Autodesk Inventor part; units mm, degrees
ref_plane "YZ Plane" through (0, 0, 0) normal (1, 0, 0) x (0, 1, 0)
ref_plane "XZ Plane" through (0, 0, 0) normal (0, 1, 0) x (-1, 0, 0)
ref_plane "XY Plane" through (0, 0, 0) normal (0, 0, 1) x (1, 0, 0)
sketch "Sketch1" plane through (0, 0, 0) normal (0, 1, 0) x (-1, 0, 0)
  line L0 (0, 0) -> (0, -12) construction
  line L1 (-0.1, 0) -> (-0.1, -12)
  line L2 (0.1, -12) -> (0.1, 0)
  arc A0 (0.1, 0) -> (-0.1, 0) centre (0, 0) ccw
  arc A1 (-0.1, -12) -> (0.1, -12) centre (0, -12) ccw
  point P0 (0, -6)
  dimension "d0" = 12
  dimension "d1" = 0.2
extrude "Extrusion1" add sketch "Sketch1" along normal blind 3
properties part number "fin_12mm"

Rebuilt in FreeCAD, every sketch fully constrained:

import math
import FreeCAD as App
import Part
import Sketcher

doc = App.newDocument("Part")
body = doc.addObject("PartDesign::Body", "Body")

# Sketch on XZ plane
sketch1 = doc.addObject("Sketcher::SketchObject", "Sketch")
body.addObject(sketch1)
sketch1.AttachmentSupport = (doc.XZ_Plane, [""])
sketch1.MapMode = "FlatFace"
sketch1.addGeometry(Part.ArcOfCircle(Part.Circle(App.Vector(0, 0, 0), App.Vector(0, 0, 1), 0.1), math.radians(0), math.radians(180)), False)
sketch1.addGeometry(Part.LineSegment(App.Vector(0.1, 0, 0), App.Vector(0.1, -12, 0)), False)
sketch1.addGeometry(Part.ArcOfCircle(Part.Circle(App.Vector(0, -12, 0), App.Vector(0, 0, 1), 0.1), math.radians(180), math.radians(360)), False)
sketch1.addGeometry(Part.LineSegment(App.Vector(-0.1, -12, 0), App.Vector(-0.1, 0, 0)), False)
sketch1.addConstraint(Sketcher.Constraint("Tangent", 0, 1, 1, 1))
sketch1.addConstraint(Sketcher.Constraint("Tangent", 1, 2, 2, 2))
sketch1.addConstraint(Sketcher.Constraint("Tangent", 2, 1, 3, 1))
sketch1.addConstraint(Sketcher.Constraint("Tangent", 3, 2, 0, 2))
sketch1.addConstraint(Sketcher.Constraint("Vertical", 1))
sketch1.addConstraint(Sketcher.Constraint("Vertical", 3))
sketch1.addConstraint(Sketcher.Constraint("Coincident", 0, 3, -1, 1))
sketch1.addConstraint(Sketcher.Constraint("Radius", 0, 0.1))
sketch1.addConstraint(Sketcher.Constraint("DistanceY", 1, 2, 1, 1, 12.0))
pad1 = doc.addObject("PartDesign::Pad", "Pad")
body.addObject(pad1)
pad1.Profile = sketch1
pad1.Length = 3
pad1.Reversed = True

doc.recompute()
